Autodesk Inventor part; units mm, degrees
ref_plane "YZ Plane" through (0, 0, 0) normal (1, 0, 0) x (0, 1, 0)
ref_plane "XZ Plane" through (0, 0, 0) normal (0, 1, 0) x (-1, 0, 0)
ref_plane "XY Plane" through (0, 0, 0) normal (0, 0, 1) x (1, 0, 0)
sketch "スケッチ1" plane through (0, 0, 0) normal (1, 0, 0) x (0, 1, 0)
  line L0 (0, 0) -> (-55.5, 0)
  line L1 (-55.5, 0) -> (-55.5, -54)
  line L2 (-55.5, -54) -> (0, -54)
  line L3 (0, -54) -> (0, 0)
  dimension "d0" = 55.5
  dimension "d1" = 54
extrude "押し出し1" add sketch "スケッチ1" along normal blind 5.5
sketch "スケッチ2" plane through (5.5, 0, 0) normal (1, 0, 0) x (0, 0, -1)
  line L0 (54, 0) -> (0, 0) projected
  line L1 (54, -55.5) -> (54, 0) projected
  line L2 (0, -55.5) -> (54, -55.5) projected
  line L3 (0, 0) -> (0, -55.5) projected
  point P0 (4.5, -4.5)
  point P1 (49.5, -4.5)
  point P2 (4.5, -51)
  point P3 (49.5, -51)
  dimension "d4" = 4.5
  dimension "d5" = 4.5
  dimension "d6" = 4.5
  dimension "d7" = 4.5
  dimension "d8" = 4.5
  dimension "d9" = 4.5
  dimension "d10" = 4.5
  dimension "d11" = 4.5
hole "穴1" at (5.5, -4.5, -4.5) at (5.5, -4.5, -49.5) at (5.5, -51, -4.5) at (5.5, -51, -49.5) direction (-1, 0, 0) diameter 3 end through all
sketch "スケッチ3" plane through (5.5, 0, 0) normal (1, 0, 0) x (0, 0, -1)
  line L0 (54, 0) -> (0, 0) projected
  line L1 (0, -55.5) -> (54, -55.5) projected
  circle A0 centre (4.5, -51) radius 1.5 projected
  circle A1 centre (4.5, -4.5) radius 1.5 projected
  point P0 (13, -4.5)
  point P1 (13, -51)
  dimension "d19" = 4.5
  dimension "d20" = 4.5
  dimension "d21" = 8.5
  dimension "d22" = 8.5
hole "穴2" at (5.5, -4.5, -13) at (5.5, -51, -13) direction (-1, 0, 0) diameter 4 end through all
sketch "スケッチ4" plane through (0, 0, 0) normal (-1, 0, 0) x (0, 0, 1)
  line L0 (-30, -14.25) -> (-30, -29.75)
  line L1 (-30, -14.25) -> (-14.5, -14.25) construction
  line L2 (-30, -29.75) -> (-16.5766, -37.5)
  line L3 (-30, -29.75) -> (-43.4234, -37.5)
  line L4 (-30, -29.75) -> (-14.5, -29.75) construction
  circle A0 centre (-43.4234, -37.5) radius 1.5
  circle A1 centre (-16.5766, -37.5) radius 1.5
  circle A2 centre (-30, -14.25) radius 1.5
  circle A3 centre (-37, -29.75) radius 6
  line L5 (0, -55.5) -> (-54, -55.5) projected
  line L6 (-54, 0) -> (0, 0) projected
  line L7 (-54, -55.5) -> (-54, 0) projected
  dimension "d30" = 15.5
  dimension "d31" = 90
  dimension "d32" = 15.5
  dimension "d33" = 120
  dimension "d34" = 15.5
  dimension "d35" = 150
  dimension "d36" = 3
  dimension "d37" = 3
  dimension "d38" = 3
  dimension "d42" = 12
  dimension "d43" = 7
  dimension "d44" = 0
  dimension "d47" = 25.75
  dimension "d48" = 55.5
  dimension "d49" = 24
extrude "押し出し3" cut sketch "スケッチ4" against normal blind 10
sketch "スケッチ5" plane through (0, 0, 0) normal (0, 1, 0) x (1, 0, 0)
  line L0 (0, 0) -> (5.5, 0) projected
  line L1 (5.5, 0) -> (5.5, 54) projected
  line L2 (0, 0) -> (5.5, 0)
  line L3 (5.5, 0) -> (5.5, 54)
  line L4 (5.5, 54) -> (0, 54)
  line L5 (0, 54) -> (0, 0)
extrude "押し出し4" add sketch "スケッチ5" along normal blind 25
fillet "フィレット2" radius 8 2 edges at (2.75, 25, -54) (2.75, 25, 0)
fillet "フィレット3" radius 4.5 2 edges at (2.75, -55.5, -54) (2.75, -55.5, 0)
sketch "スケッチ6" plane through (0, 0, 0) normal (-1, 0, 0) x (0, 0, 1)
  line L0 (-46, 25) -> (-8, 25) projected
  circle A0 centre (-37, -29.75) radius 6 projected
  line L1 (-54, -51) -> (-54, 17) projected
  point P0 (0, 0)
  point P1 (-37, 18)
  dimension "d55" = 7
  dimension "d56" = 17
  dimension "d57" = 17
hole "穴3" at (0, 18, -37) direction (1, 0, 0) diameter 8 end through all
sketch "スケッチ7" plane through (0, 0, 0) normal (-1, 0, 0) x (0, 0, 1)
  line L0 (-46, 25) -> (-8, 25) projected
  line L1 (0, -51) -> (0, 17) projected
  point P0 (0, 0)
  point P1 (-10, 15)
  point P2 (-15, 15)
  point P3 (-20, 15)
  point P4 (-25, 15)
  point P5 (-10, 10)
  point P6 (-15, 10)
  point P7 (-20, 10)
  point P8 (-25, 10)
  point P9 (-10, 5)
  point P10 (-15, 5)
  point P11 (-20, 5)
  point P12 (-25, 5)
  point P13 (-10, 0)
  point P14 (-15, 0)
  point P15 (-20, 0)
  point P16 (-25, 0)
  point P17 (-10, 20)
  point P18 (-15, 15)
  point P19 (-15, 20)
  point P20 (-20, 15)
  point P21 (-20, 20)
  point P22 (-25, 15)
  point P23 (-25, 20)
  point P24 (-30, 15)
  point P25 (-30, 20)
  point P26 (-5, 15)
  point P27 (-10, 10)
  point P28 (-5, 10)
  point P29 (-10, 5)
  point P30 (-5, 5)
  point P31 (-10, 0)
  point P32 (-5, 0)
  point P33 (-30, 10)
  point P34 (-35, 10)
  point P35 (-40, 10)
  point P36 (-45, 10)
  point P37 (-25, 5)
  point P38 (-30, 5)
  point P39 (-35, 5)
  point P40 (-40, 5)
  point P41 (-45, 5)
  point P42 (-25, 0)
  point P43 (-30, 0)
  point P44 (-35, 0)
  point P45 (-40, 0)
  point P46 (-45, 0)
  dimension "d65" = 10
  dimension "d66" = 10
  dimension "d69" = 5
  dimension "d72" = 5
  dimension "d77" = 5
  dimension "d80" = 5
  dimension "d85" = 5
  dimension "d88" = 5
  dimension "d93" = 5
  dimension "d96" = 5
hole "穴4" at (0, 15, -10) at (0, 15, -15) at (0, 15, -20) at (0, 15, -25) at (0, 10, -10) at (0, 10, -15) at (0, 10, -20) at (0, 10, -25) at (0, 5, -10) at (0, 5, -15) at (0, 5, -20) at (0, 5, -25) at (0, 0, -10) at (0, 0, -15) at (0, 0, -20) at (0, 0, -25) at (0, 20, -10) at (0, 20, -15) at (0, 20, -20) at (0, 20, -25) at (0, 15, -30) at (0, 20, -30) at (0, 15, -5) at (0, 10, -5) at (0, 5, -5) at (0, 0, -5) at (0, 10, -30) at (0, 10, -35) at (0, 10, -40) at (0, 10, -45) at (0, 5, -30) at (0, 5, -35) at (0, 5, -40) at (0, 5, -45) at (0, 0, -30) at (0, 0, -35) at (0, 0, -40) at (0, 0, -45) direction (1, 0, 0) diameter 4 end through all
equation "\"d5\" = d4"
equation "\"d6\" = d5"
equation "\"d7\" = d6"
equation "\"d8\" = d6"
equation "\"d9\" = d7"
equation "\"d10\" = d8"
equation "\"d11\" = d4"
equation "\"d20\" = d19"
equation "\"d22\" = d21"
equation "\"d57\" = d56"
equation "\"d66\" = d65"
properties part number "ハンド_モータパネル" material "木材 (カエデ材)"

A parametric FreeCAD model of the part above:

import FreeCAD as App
import Part
import Sketcher

V = App.Vector


def edges_at(feature, points):
    """Names of the edges that pass closest to the given points."""
    edges = feature.Shape.Edges
    near = lambda p: min(range(len(edges)), key=lambda i: edges[i].distToShape(Part.Vertex(*p))[0])
    return sorted({f"Edge{near(p) + 1}" for p in points})


def add_polygon(sketch, points):
    """Adds a closed chain of lines whose ends are joined by coincident constraints."""
    first, n = sketch.GeometryCount, len(points)
    for a, b in zip(points, points[1:] + points[:1]):
        sketch.addGeometry(Part.LineSegment(App.Vector(*a, 0), App.Vector(*b, 0)), False)
    for i in range(n):
        sketch.addConstraint(Sketcher.Constraint("Coincident", first + i, 2, first + (i + 1) % n, 1))

doc = App.newDocument("Part")
body = doc.addObject("PartDesign::Body", "Body")

sketch1 = body.newObject("Sketcher::SketchObject", "Sketch")
sketch1.AttachmentSupport = (doc.getObject("YZ_Plane"), [""])
sketch1.MapMode = "FlatFace"
add_polygon(sketch1, [(0, -54), (0, 0), (-56, 0), (-56, -54)])
sketch1.addConstraint(Sketcher.Constraint("Vertical", 0))
sketch1.addConstraint(Sketcher.Constraint("Horizontal", 1))
sketch1.addConstraint(Sketcher.Constraint("Vertical", 2))
sketch1.addConstraint(Sketcher.Constraint("Horizontal", 3))
sketch1.addConstraint(Sketcher.Constraint("Coincident", 0, 2, -1, 1))
sketch1.addConstraint(Sketcher.Constraint("DistanceY", 0, 1, 0, 2, 54.0))
sketch1.addConstraint(Sketcher.Constraint("DistanceX", 1, 2, 1, 1, 55.5))
pad1 = body.newObject("PartDesign::Pad", "Pad")
pad1.Profile = sketch1
pad1.Length = 5.5

sketch2 = body.newObject("Sketcher::SketchObject", "Sketch001")
sketch2.AttachmentSupport = (doc.getObject("YZ_Plane"), [""])
sketch2.MapMode = "FlatFace"
sketch2.AttachmentOffset = App.Placement(V(0, 0, 5.5), App.Rotation())
sketch2.addGeometry(Part.Circle(V(-4.5, -4.5, 0), V(0, 0, 1), 1.5), False)
sketch2.addGeometry(Part.Circle(V(-4.5, -49.5, 0), V(0, 0, 1), 1.5), False)
sketch2.addGeometry(Part.Circle(V(-51, -4.5, 0), V(0, 0, 1), 1.5), False)
sketch2.addGeometry(Part.Circle(V(-51, -49.5, 0), V(0, 0, 1), 1.5), False)
sketch2.addConstraint(Sketcher.Constraint("Equal", 0, 1))
sketch2.addConstraint(Sketcher.Constraint("Equal", 1, 2))
sketch2.addConstraint(Sketcher.Constraint("Equal", 2, 3))
sketch2.addConstraint(Sketcher.Constraint("Horizontal", 0, 3, 2, 3))
sketch2.addConstraint(Sketcher.Constraint("Horizontal", 1, 3, 3, 3))
sketch2.addConstraint(Sketcher.Constraint("Vertical", 0, 3, 1, 3))
sketch2.addConstraint(Sketcher.Constraint("Vertical", 2, 3, 3, 3))
sketch2.addConstraint(Sketcher.Constraint("Diameter", 0, 3.0))
sketch2.addConstraint(Sketcher.Constraint("DistanceX", 2, 3, -1, 1, 51.0))
sketch2.addConstraint(Sketcher.Constraint("DistanceY", 1, 3, 0, 3, 45.0))
sketch2.addConstraint(Sketcher.Constraint("DistanceX", 0, 3, -1, 1, 4.5))
sketch2.addConstraint(Sketcher.Constraint("DistanceY", 0, 3, -1, 1, 4.5))
doc.recompute()
hole = body.newObject("PartDesign::Hole", "Hole")
hole.Profile = sketch2
hole.ThreadType = "None"
hole.Diameter = 3
hole.DepthType = "ThroughAll"

sketch3 = body.newObject("Sketcher::SketchObject", "Sketch002")
sketch3.AttachmentSupport = (doc.getObject("YZ_Plane"), [""])
sketch3.MapMode = "FlatFace"
sketch3.AttachmentOffset = App.Placement(V(0, 0, 5.5), App.Rotation())
sketch3.addGeometry(Part.Circle(V(-4.5, -13, 0), V(0, 0, 1), 2), False)
sketch3.addGeometry(Part.Circle(V(-51, -13, 0), V(0, 0, 1), 2), False)
sketch3.addConstraint(Sketcher.Constraint("Equal", 0, 1))
sketch3.addConstraint(Sketcher.Constraint("Horizontal", 0, 3, 1, 3))
sketch3.addConstraint(Sketcher.Constraint("Diameter", 0, 4.0))
sketch3.addConstraint(Sketcher.Constraint("DistanceY", 0, 3, -1, 1, 13.0))
sketch3.addConstraint(Sketcher.Constraint("DistanceX", 1, 3, -1, 1, 51.0))
sketch3.addConstraint(Sketcher.Constraint("DistanceX", 0, 3, -1, 1, 4.5))
doc.recompute()
hole2 = body.newObject("PartDesign::Hole", "Hole001")
hole2.Profile = sketch3
hole2.ThreadType = "None"
hole2.Diameter = 4
hole2.DepthType = "ThroughAll"

sketch4 = body.newObject("Sketcher::SketchObject", "Sketch003")
sketch4.AttachmentSupport = (doc.getObject("YZ_Plane"), [""])
sketch4.MapMode = "FlatFace"
sketch4.addGeometry(Part.Circle(V(-37.5, -16.6, 0), V(0, 0, 1), 1.5), False)
sketch4.addGeometry(Part.Circle(V(-37.5, -43.4, 0), V(0, 0, 1), 1.5), False)
sketch4.addGeometry(Part.Circle(V(-29.8, -37, 0), V(0, 0, 1), 6), False)
sketch4.addGeometry(Part.Circle(V(-14.2, -30, 0), V(0, 0, 1), 1.5), False)
sketch4.addConstraint(Sketcher.Constraint("Equal", 0, 1))
sketch4.addConstraint(Sketcher.Constraint("Equal", 1, 3))
sketch4.addConstraint(Sketcher.Constraint("Vertical", 0, 3, 1, 3))
sketch4.addConstraint(Sketcher.Constraint("Diameter", 0, 3.0))
sketch4.addConstraint(Sketcher.Constraint("Diameter", 2, 12.0))
sketch4.addConstraint(Sketcher.Constraint("DistanceY", 2, 3, 3, 3, 7.0))
sketch4.addConstraint(Sketcher.Constraint("DistanceX", 2, 3, 3, 3, 15.5))
sketch4.addConstraint(Sketcher.Constraint("DistanceY", 2, 3, -1, 1, 37.0))
sketch4.addConstraint(Sketcher.Constraint("DistanceX", 0, 3, -1, 1, 37.5))
sketch4.addConstraint(Sketcher.Constraint("DistanceX", 2, 3, -1, 1, 29.75))
sketch4.addConstraint(Sketcher.Constraint("DistanceY", 0, 3, -1, 1, 16.5766))
sketch4.addConstraint(Sketcher.Constraint("DistanceY", 1, 3, -1, 1, 43.4234))
pocket1 = body.newObject("PartDesign::Pocket", "Pocket")
pocket1.Profile = sketch4
pocket1.Length = 10
pocket1.Reversed = True

sketch5 = body.newObject("Sketcher::SketchObject", "Sketch004")
sketch5.AttachmentSupport = (doc.getObject("XZ_Plane"), [""])
sketch5.MapMode = "FlatFace"
add_polygon(sketch5, [(0, -54), (0, 0), (6, 0), (6, -54)])
sketch5.addConstraint(Sketcher.Constraint("Vertical", 0))
sketch5.addConstraint(Sketcher.Constraint("Horizontal", 1))
sketch5.addConstraint(Sketcher.Constraint("Vertical", 2))
sketch5.addConstraint(Sketcher.Constraint("Horizontal", 3))
sketch5.addConstraint(Sketcher.Constraint("Coincident", 0, 2, -1, 1))
sketch5.addConstraint(Sketcher.Constraint("DistanceY", 0, 1, 0, 2, 54.0))
sketch5.addConstraint(Sketcher.Constraint("DistanceX", 1, 1, 1, 2, 5.5))
pad2 = body.newObject("PartDesign::Pad", "Pad001")
pad2.Profile = sketch5
pad2.Length = 25
pad2.Reversed = True
doc.recompute()

fillet = body.newObject("PartDesign::Fillet", "Fillet")
fillet.Base = (pad2, edges_at(pad2, [(2.75, 25, -54), (2.75, 25, 0)]))
fillet.Radius = 8
doc.recompute()

fillet2 = body.newObject("PartDesign::Fillet", "Fillet001")
fillet2.Base = (fillet, edges_at(fillet, [(2.75, -55.5, -54), (2.75, -55.5, 0)]))
fillet2.Radius = 4.5

sketch6 = body.newObject("Sketcher::SketchObject", "Sketch005")
sketch6.AttachmentSupport = (doc.getObject("YZ_Plane"), [""])
sketch6.MapMode = "FlatFace"
sketch6.addGeometry(Part.Circle(V(18, -37, 0), V(0, 0, 1), 4), False)
sketch6.addConstraint(Sketcher.Constraint("Diameter", 0, 8.0))
sketch6.addConstraint(Sketcher.Constraint("DistanceX", -1, 1, 0, 3, 18.0))
sketch6.addConstraint(Sketcher.Constraint("DistanceY", 0, 3, -1, 1, 37.0))
doc.recompute()
hole3 = body.newObject("PartDesign::Hole", "Hole002")
hole3.Profile = sketch6
hole3.ThreadType = "None"
hole3.Diameter = 8
hole3.DepthType = "ThroughAll"
hole3.Reversed = True

sketch7 = body.newObject("Sketcher::SketchObject", "Sketch006")
sketch7.AttachmentSupport = (doc.getObject("YZ_Plane"), [""])
sketch7.MapMode = "FlatFace"
sketch7.addGeometry(Part.Circle(V(15, -10, 0), V(0, 0, 1), 2), False)
sketch7.addGeometry(Part.Circle(V(15, -15, 0), V(0, 0, 1), 2), False)
sketch7.addGeometry(Part.Circle(V(15, -20, 0), V(0, 0, 1), 2), False)
sketch7.addGeometry(Part.Circle(V(15, -25, 0), V(0, 0, 1), 2), False)
sketch7.addGeometry(Part.Circle(V(10, -10, 0), V(0, 0, 1), 2), False)
sketch7.addGeometry(Part.Circle(V(10, -15, 0), V(0, 0, 1), 2), False)
sketch7.addGeometry(Part.Circle(V(10, -20, 0), V(0, 0, 1), 2), False)
sketch7.addGeometry(Part.Circle(V(10, -25, 0), V(0, 0, 1), 2), False)
sketch7.addGeometry(Part.Circle(V(5, -10, 0), V(0, 0, 1), 2), False)
sketch7.addGeometry(Part.Circle(V(5, -15, 0), V(0, 0, 1), 2), False)
sketch7.addGeometry(Part.Circle(V(5, -20, 0), V(0, 0, 1), 2), False)
sketch7.addGeometry(Part.Circle(V(5, -25, 0), V(0, 0, 1), 2), False)
sketch7.addGeometry(Part.Circle(V(0, -10, 0), V(0, 0, 1), 2), False)
sketch7.addGeometry(Part.Circle(V(0, -15, 0), V(0, 0, 1), 2), False)
sketch7.addGeometry(Part.Circle(V(0, -20, 0), V(0, 0, 1), 2), False)
sketch7.addGeometry(Part.Circle(V(0, -25, 0), V(0, 0, 1), 2), False)
sketch7.addGeometry(Part.Circle(V(20, -10, 0), V(0, 0, 1), 2), False)
sketch7.addGeometry(Part.Circle(V(20, -15, 0), V(0, 0, 1), 2), False)
sketch7.addGeometry(Part.Circle(V(20, -20, 0), V(0, 0, 1), 2), False)
sketch7.addGeometry(Part.Circle(V(20, -25, 0), V(0, 0, 1), 2), False)
sketch7.addGeometry(Part.Circle(V(15, -30, 0), V(0, 0, 1), 2), False)
sketch7.addGeometry(Part.Circle(V(20, -30, 0), V(0, 0, 1), 2), False)
sketch7.addGeometry(Part.Circle(V(15, -5, 0), V(0, 0, 1), 2), False)
sketch7.addGeometry(Part.Circle(V(10, -5, 0), V(0, 0, 1), 2), False)
sketch7.addGeometry(Part.Circle(V(5, -5, 0), V(0, 0, 1), 2), False)
sketch7.addGeometry(Part.Circle(V(0, -5, 0), V(0, 0, 1), 2), False)
sketch7.addGeometry(Part.Circle(V(10, -30, 0), V(0, 0, 1), 2), False)
sketch7.addGeometry(Part.Circle(V(10, -35, 0), V(0, 0, 1), 2), False)
sketch7.addGeometry(Part.Circle(V(10, -40, 0), V(0, 0, 1), 2), False)
sketch7.addGeometry(Part.Circle(V(10, -45, 0), V(0, 0, 1), 2), False)
sketch7.addGeometry(Part.Circle(V(5, -30, 0), V(0, 0, 1), 2), False)
sketch7.addGeometry(Part.Circle(V(5, -35, 0), V(0, 0, 1), 2), False)
sketch7.addGeometry(Part.Circle(V(5, -40, 0), V(0, 0, 1), 2), False)
sketch7.addGeometry(Part.Circle(V(5, -45, 0), V(0, 0, 1), 2), False)
sketch7.addGeometry(Part.Circle(V(0, -30, 0), V(0, 0, 1), 2), False)
sketch7.addGeometry(Part.Circle(V(0, -35, 0), V(0, 0, 1), 2), False)
sketch7.addGeometry(Part.Circle(V(0, -40, 0), V(0, 0, 1), 2), False)
sketch7.addGeometry(Part.Circle(V(0, -45, 0), V(0, 0, 1), 2), False)
sketch7.addConstraint(Sketcher.Constraint("Equal", 0, 1))
sketch7.addConstraint(Sketcher.Constraint("Equal", 1, 2))
sketch7.addConstraint(Sketcher.Constraint("Equal", 2, 3))
sketch7.addConstraint(Sketcher.Constraint("Equal", 3, 4))
sketch7.addConstraint(Sketcher.Constraint("Equal", 4, 5))
sketch7.addConstraint(Sketcher.Constraint("Equal", 5, 6))
sketch7.addConstraint(Sketcher.Constraint("Equal", 6, 7))
sketch7.addConstraint(Sketcher.Constraint("Equal", 7, 8))
sketch7.addConstraint(Sketcher.Constraint("Equal", 8, 9))
sketch7.addConstraint(Sketcher.Constraint("Equal", 9, 10))
sketch7.addConstraint(Sketcher.Constraint("Equal", 10, 11))
sketch7.addConstraint(Sketcher.Constraint("Equal", 11, 12))
sketch7.addConstraint(Sketcher.Constraint("Equal", 12, 13))
sketch7.addConstraint(Sketcher.Constraint("Equal", 13, 14))
sketch7.addConstraint(Sketcher.Constraint("Equal", 14, 15))
sketch7.addConstraint(Sketcher.Constraint("Equal", 15, 16))
sketch7.addConstraint(Sketcher.Constraint("Equal", 16, 17))
sketch7.addConstraint(Sketcher.Constraint("Equal", 17, 18))
sketch7.addConstraint(Sketcher.Constraint("Equal", 18, 19))
sketch7.addConstraint(Sketcher.Constraint("Equal", 19, 20))
sketch7.addConstraint(Sketcher.Constraint("Equal", 20, 21))
sketch7.addConstraint(Sketcher.Constraint("Equal", 21, 22))
sketch7.addConstraint(Sketcher.Constraint("Equal", 22, 23))
sketch7.addConstraint(Sketcher.Constraint("Equal", 23, 24))
sketch7.addConstraint(Sketcher.Constraint("Equal", 24, 25))
sketch7.addConstraint(Sketcher.Constraint("Equal", 25, 26))
sketch7.addConstraint(Sketcher.Constraint("Equal", 26, 27))
sketch7.addConstraint(Sketcher.Constraint("Equal", 27, 28))
sketch7.addConstraint(Sketcher.Constraint("Equal", 28, 29))
sketch7.addConstraint(Sketcher.Constraint("Equal", 29, 30))
sketch7.addConstraint(Sketcher.Constraint("Equal", 30, 31))
sketch7.addConstraint(Sketcher.Constraint("Equal", 31, 32))
sketch7.addConstraint(Sketcher.Constraint("Equal", 32, 33))
sketch7.addConstraint(Sketcher.Constraint("Equal", 33, 34))
sketch7.addConstraint(Sketcher.Constraint("Equal", 34, 35))
sketch7.addConstraint(Sketcher.Constraint("Equal", 35, 36))
sketch7.addConstraint(Sketcher.Constraint("Equal", 36, 37))
sketch7.addConstraint(Sketcher.Constraint("PointOnObject", 12, 3, -2))
sketch7.addConstraint(Sketcher.Constraint("PointOnObject", 13, 3, -2))
sketch7.addConstraint(Sketcher.Constraint("PointOnObject", 14, 3, -2))
sketch7.addConstraint(Sketcher.Constraint("PointOnObject", 15, 3, -2))
sketch7.addConstraint(Sketcher.Constraint("PointOnObject", 25, 3, -2))
sketch7.addConstraint(Sketcher.Constraint("PointOnObject", 34, 3, -2))
sketch7.addConstraint(Sketcher.Constraint("PointOnObject", 35, 3, -2))
sketch7.addConstraint(Sketcher.Constraint("PointOnObject", 36, 3, -2))
sketch7.addConstraint(Sketcher.Constraint("PointOnObject", 37, 3, -2))
sketch7.addConstraint(Sketcher.Constraint("Horizontal", 0, 3, 4, 3))
sketch7.addConstraint(Sketcher.Constraint("Horizontal", 1, 3, 5, 3))
sketch7.addConstraint(Sketcher.Constraint("Horizontal", 2, 3, 6, 3))
sketch7.addConstraint(Sketcher.Constraint("Horizontal", 3, 3, 7, 3))
sketch7.addConstraint(Sketcher.Constraint("Horizontal", 4, 3, 8, 3))
sketch7.addConstraint(Sketcher.Constraint("Horizontal", 5, 3, 9, 3))
sketch7.addConstraint(Sketcher.Constraint("Horizontal", 6, 3, 10, 3))
sketch7.addConstraint(Sketcher.Constraint("Horizontal", 7, 3, 11, 3))
sketch7.addConstraint(Sketcher.Constraint("Horizontal", 8, 3, 12, 3))
sketch7.addConstraint(Sketcher.Constraint("Horizontal", 9, 3, 13, 3))
sketch7.addConstraint(Sketcher.Constraint("Horizontal", 10, 3, 14, 3))
sketch7.addConstraint(Sketcher.Constraint("Horizontal", 11, 3, 15, 3))
sketch7.addConstraint(Sketcher.Constraint("Horizontal", 12, 3, 16, 3))
sketch7.addConstraint(Sketcher.Constraint("Horizontal", 13, 3, 17, 3))
sketch7.addConstraint(Sketcher.Constraint("Horizontal", 14, 3, 18, 3))
sketch7.addConstraint(Sketcher.Constraint("Horizontal", 15, 3, 19, 3))
sketch7.addConstraint(Sketcher.Constraint("Horizontal", 20, 3, 21, 3))
sketch7.addConstraint(Sketcher.Constraint("Horizontal", 22, 3, 23, 3))
sketch7.addConstraint(Sketcher.Constraint("Horizontal", 23, 3, 24, 3))
sketch7.addConstraint(Sketcher.Constraint("Horizontal", 24, 3, 25, 3))
sketch7.addConstraint(Sketcher.Constraint("Horizontal", 21, 3, 26, 3))
sketch7.addConstraint(Sketcher.Constraint("Horizontal", 26, 3, 30, 3))
sketch7.addConstraint(Sketcher.Constraint("Horizontal", 27, 3, 31, 3))
sketch7.addConstraint(Sketcher.Constraint("Horizontal", 28, 3, 32, 3))
sketch7.addConstraint(Sketcher.Constraint("Horizontal", 29, 3, 33, 3))
sketch7.addConstraint(Sketcher.Constraint("Horizontal", 30, 3, 34, 3))
sketch7.addConstraint(Sketcher.Constraint("Horizontal", 31, 3, 35, 3))
sketch7.addConstraint(Sketcher.Constraint("Horizontal", 32, 3, 36, 3))
sketch7.addConstraint(Sketcher.Constraint("Horizontal", 33, 3, 37, 3))
sketch7.addConstraint(Sketcher.Constraint("Vertical", 0, 3, 1, 3))
sketch7.addConstraint(Sketcher.Constraint("Vertical", 1, 3, 2, 3))
sketch7.addConstraint(Sketcher.Constraint("Vertical", 2, 3, 3, 3))
sketch7.addConstraint(Sketcher.Constraint("Vertical", 4, 3, 5, 3))
sketch7.addConstraint(Sketcher.Constraint("Vertical", 5, 3, 6, 3))
sketch7.addConstraint(Sketcher.Constraint("Vertical", 6, 3, 7, 3))
sketch7.addConstraint(Sketcher.Constraint("Vertical", 8, 3, 9, 3))
sketch7.addConstraint(Sketcher.Constraint("Vertical", 9, 3, 10, 3))
sketch7.addConstraint(Sketcher.Constraint("Vertical", 10, 3, 11, 3))
sketch7.addConstraint(Sketcher.Constraint("Vertical", 16, 3, 17, 3))
sketch7.addConstraint(Sketcher.Constraint("Vertical", 17, 3, 18, 3))
sketch7.addConstraint(Sketcher.Constraint("Vertical", 18, 3, 19, 3))
sketch7.addConstraint(Sketcher.Constraint("Vertical", 3, 3, 20, 3))
sketch7.addConstraint(Sketcher.Constraint("Vertical", 19, 3, 21, 3))
sketch7.addConstraint(Sketcher.Constraint("Vertical", 20, 3, 22, 3))
sketch7.addConstraint(Sketcher.Constraint("Vertical", 7, 3, 23, 3))
sketch7.addConstraint(Sketcher.Constraint("Vertical", 11, 3, 24, 3))
sketch7.addConstraint(Sketcher.Constraint("Vertical", 23, 3, 26, 3))
sketch7.addConstraint(Sketcher.Constraint("Vertical", 26, 3, 27, 3))
sketch7.addConstraint(Sketcher.Constraint("Vertical", 27, 3, 28, 3))
sketch7.addConstraint(Sketcher.Constraint("Vertical", 28, 3, 29, 3))
sketch7.addConstraint(Sketcher.Constraint("Vertical", 24, 3, 30, 3))
sketch7.addConstraint(Sketcher.Constraint("Vertical", 30, 3, 31, 3))
sketch7.addConstraint(Sketcher.Constraint("Vertical", 31, 3, 32, 3))
sketch7.addConstraint(Sketcher.Constraint("Vertical", 32, 3, 33, 3))
sketch7.addConstraint(Sketcher.Constraint("Diameter", 0, 4.0))
sketch7.addConstraint(Sketcher.Constraint("DistanceX", -1, 1, 0, 3, 15.0))
sketch7.addConstraint(Sketcher.Constraint("DistanceY", 0, 3, -1, 1, 10.0))
sketch7.addConstraint(Sketcher.Constraint("DistanceY", 1, 3, -1, 1, 15.0))
sketch7.addConstraint(Sketcher.Constraint("DistanceY", 2, 3, -1, 1, 20.0))
sketch7.addConstraint(Sketcher.Constraint("DistanceY", 3, 3, -1, 1, 25.0))
sketch7.addConstraint(Sketcher.Constraint("DistanceX", -1, 1, 4, 3, 10.0))
sketch7.addConstraint(Sketcher.Constraint("DistanceX", -1, 1, 8, 3, 5.0))
sketch7.addConstraint(Sketcher.Constraint("DistanceX", -1, 1, 16, 3, 20.0))
sketch7.addConstraint(Sketcher.Constraint("DistanceY", 20, 3, -1, 1, 30.0))
sketch7.addConstraint(Sketcher.Constraint("DistanceY", 22, 3, -1, 1, 5.0))
sketch7.addConstraint(Sketcher.Constraint("DistanceY", 27, 3, -1, 1, 35.0))
sketch7.addConstraint(Sketcher.Constraint("DistanceY", 28, 3, -1, 1, 40.0))
sketch7.addConstraint(Sketcher.Constraint("DistanceY", 29, 3, -1, 1, 45.0))
doc.recompute()
hole4 = body.newObject("PartDesign::Hole", "Hole003")
hole4.Profile = sketch7
hole4.ThreadType = "None"
hole4.Diameter = 4
hole4.DepthType = "ThroughAll"
hole4.Reversed = True

doc.recompute()
